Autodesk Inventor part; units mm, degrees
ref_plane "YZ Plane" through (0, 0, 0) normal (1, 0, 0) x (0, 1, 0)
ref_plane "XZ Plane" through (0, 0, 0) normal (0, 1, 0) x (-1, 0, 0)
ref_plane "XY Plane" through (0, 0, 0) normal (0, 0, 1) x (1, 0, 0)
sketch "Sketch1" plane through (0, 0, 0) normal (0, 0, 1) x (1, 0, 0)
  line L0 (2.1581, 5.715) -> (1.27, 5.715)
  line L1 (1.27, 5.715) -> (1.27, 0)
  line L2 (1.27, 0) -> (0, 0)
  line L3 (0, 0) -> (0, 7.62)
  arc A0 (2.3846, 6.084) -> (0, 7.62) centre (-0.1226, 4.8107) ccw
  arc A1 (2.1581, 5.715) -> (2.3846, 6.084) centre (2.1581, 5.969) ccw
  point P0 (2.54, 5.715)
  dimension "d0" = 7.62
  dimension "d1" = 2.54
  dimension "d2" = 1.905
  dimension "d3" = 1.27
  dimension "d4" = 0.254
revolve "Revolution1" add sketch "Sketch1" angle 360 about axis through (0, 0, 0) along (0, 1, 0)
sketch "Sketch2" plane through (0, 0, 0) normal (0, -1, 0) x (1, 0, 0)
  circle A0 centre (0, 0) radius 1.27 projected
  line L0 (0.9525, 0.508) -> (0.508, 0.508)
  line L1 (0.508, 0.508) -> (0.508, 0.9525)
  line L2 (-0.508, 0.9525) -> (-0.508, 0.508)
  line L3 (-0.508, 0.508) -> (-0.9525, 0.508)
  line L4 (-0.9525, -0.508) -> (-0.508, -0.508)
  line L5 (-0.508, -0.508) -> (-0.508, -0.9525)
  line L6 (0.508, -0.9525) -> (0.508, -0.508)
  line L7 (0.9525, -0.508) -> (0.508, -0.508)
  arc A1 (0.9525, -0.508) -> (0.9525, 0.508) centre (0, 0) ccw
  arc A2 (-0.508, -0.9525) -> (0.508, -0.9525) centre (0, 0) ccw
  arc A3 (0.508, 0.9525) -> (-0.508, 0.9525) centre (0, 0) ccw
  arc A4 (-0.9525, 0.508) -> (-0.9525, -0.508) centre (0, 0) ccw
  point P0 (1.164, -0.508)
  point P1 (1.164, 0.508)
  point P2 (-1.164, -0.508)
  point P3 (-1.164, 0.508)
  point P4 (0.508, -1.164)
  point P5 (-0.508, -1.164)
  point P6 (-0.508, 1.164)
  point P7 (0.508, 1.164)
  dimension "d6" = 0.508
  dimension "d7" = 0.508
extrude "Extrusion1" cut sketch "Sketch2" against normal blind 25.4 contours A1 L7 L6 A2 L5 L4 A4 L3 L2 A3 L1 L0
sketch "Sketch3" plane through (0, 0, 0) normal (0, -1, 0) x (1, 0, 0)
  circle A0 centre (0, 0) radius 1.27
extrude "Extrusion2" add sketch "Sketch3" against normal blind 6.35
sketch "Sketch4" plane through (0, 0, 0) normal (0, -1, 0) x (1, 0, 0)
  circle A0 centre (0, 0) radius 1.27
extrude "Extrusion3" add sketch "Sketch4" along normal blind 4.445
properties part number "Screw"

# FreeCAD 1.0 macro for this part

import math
import FreeCAD as App
import Part
import Sketcher

V = App.Vector
Q = App.Units.Quantity

doc = App.newDocument("Part")
body = doc.addObject("PartDesign::Body", "Body")

sketch1 = body.newObject("Sketcher::SketchObject", "Sketch")
sketch1.AttachmentSupport = (doc.getObject("XY_Plane"), [""])
sketch1.MapMode = "FlatFace"
sketch1.addGeometry([
    Part.LineSegment(V(1.27, 5.71, 0), V(2.16, 5.71, 0)),
    Part.ArcOfCircle(Part.Circle(V(2.16, 5.97, 0), V(0, 0, 1), 0.25), math.radians(-90), math.radians(27)),
    Part.ArcOfCircle(Part.Circle(V(-0.12, 4.81, 0), V(0, 0, 1), 2.81), math.radians(27), math.radians(88)),
    Part.LineSegment(V(0, 7.62, 0), V(0, 0, 0)),
    Part.LineSegment(V(0, 0, 0), V(1.27, 0, 0)),
    Part.LineSegment(V(1.27, 0, 0), V(1.27, 5.71, 0)),
], False)
sketch1.addConstraint([
    Sketcher.Constraint("Tangent", 0, 2, 1, 1),
    Sketcher.Constraint("Tangent", 1, 2, 2, 1),
    Sketcher.Constraint("Coincident", 2, 2, 3, 1),
    Sketcher.Constraint("Coincident", 3, 2, 4, 1),
    Sketcher.Constraint("Coincident", 4, 2, 5, 1),
    Sketcher.Constraint("Coincident", 5, 2, 0, 1),
    Sketcher.Constraint("Horizontal", 0),
    Sketcher.Constraint("Vertical", 3),
    Sketcher.Constraint("Horizontal", 4),
    Sketcher.Constraint("Vertical", 5),
    Sketcher.Constraint("Coincident", 3, 2, -1, 1),
    Sketcher.Constraint("Radius", 1, Q("0.01 in")),
    Sketcher.Constraint("DistanceY", 3, 2, 3, 1, Q("0.3 in")),
    Sketcher.Constraint("DistanceX", 4, 1, 4, 2, Q("0.05 in")),
    Sketcher.Constraint("DistanceY", 0, 2, 2, 2, Q("0.075 in")),
    Sketcher.Constraint("Radius", 2, Q("0.1107 in")),
    Sketcher.Constraint("DistanceX", 0, 1, 0, 2, Q("0.888 mm")),
])
revolution = body.newObject("PartDesign::Revolution", "Revolution")
revolution.Profile = sketch1
revolution.ReferenceAxis = (sketch1, ["V_Axis"])
revolution.Angle = 360

sketch2 = body.newObject("Sketcher::SketchObject", "Sketch001")
sketch2.AttachmentSupport = (doc.getObject("XZ_Plane"), [""])
sketch2.MapMode = "FlatFace"
sketch2.addGeometry([
    Part.ArcOfCircle(Part.Circle(V(0, 0, 0), V(0, 0, 1), 1.08), math.radians(-28), math.radians(28)),
    Part.LineSegment(V(0.95, 0.51, 0), V(0.51, 0.51, 0)),
    Part.LineSegment(V(0.51, 0.51, 0), V(0.51, 0.95, 0)),
    Part.ArcOfCircle(Part.Circle(V(0, 0, 0), V(0, 0, 1), 1.08), math.radians(62), math.radians(118)),
    Part.LineSegment(V(-0.51, 0.95, 0), V(-0.51, 0.51, 0)),
    Part.LineSegment(V(-0.51, 0.51, 0), V(-0.95, 0.51, 0)),
    Part.ArcOfCircle(Part.Circle(V(0, 0, 0), V(0, 0, 1), 1.08), math.radians(152), math.radians(208)),
    Part.LineSegment(V(-0.95, -0.51, 0), V(-0.51, -0.51, 0)),
    Part.LineSegment(V(-0.51, -0.51, 0), V(-0.51, -0.95, 0)),
    Part.ArcOfCircle(Part.Circle(V(0, 0, 0), V(0, 0, 1), 1.08), math.radians(-118), math.radians(-62)),
    Part.LineSegment(V(0.51, -0.95, 0), V(0.51, -0.51, 0)),
    Part.LineSegment(V(0.51, -0.51, 0), V(0.95, -0.51, 0)),
], False)
sketch2.addConstraint([
    Sketcher.Constraint("Coincident", 0, 2, 1, 1),
    Sketcher.Constraint("Coincident", 1, 2, 2, 1),
    Sketcher.Constraint("Coincident", 2, 2, 3, 1),
    Sketcher.Constraint("Coincident", 3, 2, 4, 1),
    Sketcher.Constraint("Coincident", 4, 2, 5, 1),
    Sketcher.Constraint("Coincident", 5, 2, 6, 1),
    Sketcher.Constraint("Coincident", 6, 2, 7, 1),
    Sketcher.Constraint("Coincident", 7, 2, 8, 1),
    Sketcher.Constraint("Coincident", 8, 2, 9, 1),
    Sketcher.Constraint("Coincident", 9, 2, 10, 1),
    Sketcher.Constraint("Coincident", 10, 2, 11, 1),
    Sketcher.Constraint("Coincident", 11, 2, 0, 1),
    Sketcher.Constraint("Horizontal", 1),
    Sketcher.Constraint("Vertical", 2),
    Sketcher.Constraint("Vertical", 4),
    Sketcher.Constraint("Horizontal", 5),
    Sketcher.Constraint("Horizontal", 7),
    Sketcher.Constraint("Vertical", 8),
    Sketcher.Constraint("Vertical", 10),
    Sketcher.Constraint("Horizontal", 11),
    Sketcher.Constraint("Coincident", 0, 3, -1, 1),
    Sketcher.Constraint("Coincident", 3, 3, -1, 1),
    Sketcher.Constraint("Coincident", 6, 3, -1, 1),
    Sketcher.Constraint("Coincident", 9, 3, -1, 1),
    Sketcher.Constraint("Equal", 0, 3),
    Sketcher.Constraint("Equal", 3, 6),
    Sketcher.Constraint("Equal", 6, 9),
    Sketcher.Constraint("Symmetric", 1, 2, 7, 2, -1, 1),
    Sketcher.Constraint("Symmetric", 4, 2, 10, 2, -1, 1),
    Sketcher.Constraint("Symmetric", 1, 2, 4, 2, -2),
    Sketcher.Constraint("Equal", 11, 2),
    Sketcher.Constraint("DistanceY", -1, 1, 0, 2, Q("0.02 in")),
    Sketcher.Constraint("Radius", 0, Q("0.0425 in")),
])
pocket1 = body.newObject("PartDesign::Pocket", "Pocket")
pocket1.Profile = sketch2
pocket1.Length = Q("1 in")

sketch3 = body.newObject("Sketcher::SketchObject", "Sketch002")
sketch3.AttachmentSupport = (doc.getObject("XZ_Plane"), [""])
sketch3.MapMode = "FlatFace"
sketch3.addGeometry(Part.Circle(V(0, 0, 0), V(0, 0, 1), 1.3), False)
sketch3.addConstraint([
    Sketcher.Constraint("Coincident", 0, 3, -1, 1),
    Sketcher.Constraint("Diameter", 0, Q("0.1 in")),
])
pad1 = body.newObject("PartDesign::Pad", "Pad")
pad1.Profile = sketch3
pad1.Length = Q("0.25 in")
pad1.Reversed = True

sketch4 = body.newObject("Sketcher::SketchObject", "Sketch003")
sketch4.AttachmentSupport = (doc.getObject("XZ_Plane"), [""])
sketch4.MapMode = "FlatFace"
sketch4.addGeometry(Part.Circle(V(0, 0, 0), V(0, 0, 1), 1.3), False)
sketch4.addConstraint([
    Sketcher.Constraint("Coincident", 0, 3, -1, 1),
    Sketcher.Constraint("Diameter", 0, Q("0.1 in")),
])
pad2 = body.newObject("PartDesign::Pad", "Pad001")
pad2.Profile = sketch4
pad2.Length = Q("0.175 in")

doc.recompute()
